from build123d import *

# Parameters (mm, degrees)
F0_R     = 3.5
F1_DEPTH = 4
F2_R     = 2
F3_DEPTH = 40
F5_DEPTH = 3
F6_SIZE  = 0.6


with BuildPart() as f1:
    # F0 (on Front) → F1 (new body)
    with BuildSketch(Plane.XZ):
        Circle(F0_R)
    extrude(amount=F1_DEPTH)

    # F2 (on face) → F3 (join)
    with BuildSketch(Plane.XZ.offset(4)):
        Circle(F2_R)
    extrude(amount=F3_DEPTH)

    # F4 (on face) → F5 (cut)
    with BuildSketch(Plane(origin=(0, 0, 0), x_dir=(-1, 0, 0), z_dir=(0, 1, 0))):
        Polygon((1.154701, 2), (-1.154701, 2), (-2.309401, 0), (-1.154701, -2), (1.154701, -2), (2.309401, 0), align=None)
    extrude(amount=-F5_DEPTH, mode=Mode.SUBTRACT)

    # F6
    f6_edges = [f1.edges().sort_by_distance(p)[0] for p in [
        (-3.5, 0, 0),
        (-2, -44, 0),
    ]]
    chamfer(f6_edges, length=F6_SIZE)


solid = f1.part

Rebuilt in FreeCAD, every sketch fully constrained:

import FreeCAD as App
import Part
import Sketcher
from FreeCAD import Vector
Q = App.Units.Quantity


def edges_at(feature, points):
    """Names of the edges that pass closest to the given points."""
    edges = feature.Shape.Edges
    near = lambda p: min(range(len(edges)), key=lambda i: edges[i].distToShape(Part.Vertex(*p))[0])
    return sorted({f"Edge{near(p) + 1}" for p in points})

doc = App.newDocument("Part")
body = doc.addObject("PartDesign::Body", "Body")

sketch1 = body.newObject("Sketcher::SketchObject", "Sketch")
sketch1.AttachmentSupport = (doc.getObject("XZ_Plane"), [""])
sketch1.MapMode = "FlatFace"
sketch1.addGeometry(Part.Circle(Vector(0, 0, 0), Vector(0, 0, 1), 3.5), False)
sketch1.addConstraint([
    Sketcher.Constraint("Coincident", 0, 3, -1, 1),
    Sketcher.Constraint("Diameter", 0, Q("7 mm")),
])
pad1 = body.newObject("PartDesign::Pad", "Pad")
pad1.Profile = sketch1
pad1.Length = 4

sketch2 = body.newObject("Sketcher::SketchObject", "Sketch001")
sketch2.AttachmentSupport = (doc.getObject("XZ_Plane"), [""])
sketch2.MapMode = "FlatFace"
sketch2.AttachmentOffset = App.Placement(Vector(0, 0, 4), App.Rotation())
sketch2.addGeometry(Part.Circle(Vector(0, 0, 0), Vector(0, 0, 1), 2), False)
sketch2.addConstraint([
    Sketcher.Constraint("Coincident", 0, 3, -1, 1),
    Sketcher.Constraint("Diameter", 0, Q("4 mm")),
])
pad2 = body.newObject("PartDesign::Pad", "Pad001")
pad2.Profile = sketch2
pad2.Length = 40

sketch3 = body.newObject("Sketcher::SketchObject", "Sketch002")
sketch3.AttachmentSupport = (doc.getObject("XZ_Plane"), [""])
sketch3.MapMode = "FlatFace"
sketch3.addGeometry([
    Part.LineSegment(Vector(-1.2, 2, 0), Vector(1.2, 2, 0)),
    Part.LineSegment(Vector(1.2, 2, 0), Vector(2.3, 0, 0)),
    Part.LineSegment(Vector(2.3, 0, 0), Vector(1.2, -2, 0)),
    Part.LineSegment(Vector(1.2, -2, 0), Vector(-1.2, -2, 0)),
    Part.LineSegment(Vector(-1.2, -2, 0), Vector(-2.3, 0, 0)),
    Part.LineSegment(Vector(-2.3, 0, 0), Vector(-1.2, 2, 0)),
], False)
sketch3.addConstraint([
    Sketcher.Constraint("Coincident", 0, 2, 1, 1),
    Sketcher.Constraint("Coincident", 1, 2, 2, 1),
    Sketcher.Constraint("Coincident", 2, 2, 3, 1),
    Sketcher.Constraint("Coincident", 3, 2, 4, 1),
    Sketcher.Constraint("Coincident", 4, 2, 5, 1),
    Sketcher.Constraint("Coincident", 5, 2, 0, 1),
    Sketcher.Constraint("Horizontal", 0),
    Sketcher.Constraint("Horizontal", 3),
    Sketcher.Constraint("Symmetric", 0, 2, 3, 2, -1, 1),
    Sketcher.Constraint("Symmetric", 1, 2, 4, 2, -1, 1),
    Sketcher.Constraint("PointOnObject", 1, 2, -1),
    Sketcher.Constraint("Parallel", 2, 5),
    Sketcher.Constraint("Vertical", 0, 2, 2, 2),
    Sketcher.Constraint("Angle", 1, Q("-60.000012 deg")),
    Sketcher.Constraint("DistanceY", -1, 1, 0, 2, Q("2 mm")),
    Sketcher.Constraint("DistanceX", 0, 1, 0, 2, Q("2.309402 mm")),
])
pocket1 = body.newObject("PartDesign::Pocket", "Pocket")
pocket1.Profile = sketch3
pocket1.Length = 3
pocket1.Reversed = True
doc.recompute()

chamfer = body.newObject("PartDesign::Chamfer", "Chamfer")
chamfer.Base = (pocket1, edges_at(pocket1, [(-3.5, 0, 0), (-2, -44, 0)]))
chamfer.Size = 0.6

doc.recompute()
